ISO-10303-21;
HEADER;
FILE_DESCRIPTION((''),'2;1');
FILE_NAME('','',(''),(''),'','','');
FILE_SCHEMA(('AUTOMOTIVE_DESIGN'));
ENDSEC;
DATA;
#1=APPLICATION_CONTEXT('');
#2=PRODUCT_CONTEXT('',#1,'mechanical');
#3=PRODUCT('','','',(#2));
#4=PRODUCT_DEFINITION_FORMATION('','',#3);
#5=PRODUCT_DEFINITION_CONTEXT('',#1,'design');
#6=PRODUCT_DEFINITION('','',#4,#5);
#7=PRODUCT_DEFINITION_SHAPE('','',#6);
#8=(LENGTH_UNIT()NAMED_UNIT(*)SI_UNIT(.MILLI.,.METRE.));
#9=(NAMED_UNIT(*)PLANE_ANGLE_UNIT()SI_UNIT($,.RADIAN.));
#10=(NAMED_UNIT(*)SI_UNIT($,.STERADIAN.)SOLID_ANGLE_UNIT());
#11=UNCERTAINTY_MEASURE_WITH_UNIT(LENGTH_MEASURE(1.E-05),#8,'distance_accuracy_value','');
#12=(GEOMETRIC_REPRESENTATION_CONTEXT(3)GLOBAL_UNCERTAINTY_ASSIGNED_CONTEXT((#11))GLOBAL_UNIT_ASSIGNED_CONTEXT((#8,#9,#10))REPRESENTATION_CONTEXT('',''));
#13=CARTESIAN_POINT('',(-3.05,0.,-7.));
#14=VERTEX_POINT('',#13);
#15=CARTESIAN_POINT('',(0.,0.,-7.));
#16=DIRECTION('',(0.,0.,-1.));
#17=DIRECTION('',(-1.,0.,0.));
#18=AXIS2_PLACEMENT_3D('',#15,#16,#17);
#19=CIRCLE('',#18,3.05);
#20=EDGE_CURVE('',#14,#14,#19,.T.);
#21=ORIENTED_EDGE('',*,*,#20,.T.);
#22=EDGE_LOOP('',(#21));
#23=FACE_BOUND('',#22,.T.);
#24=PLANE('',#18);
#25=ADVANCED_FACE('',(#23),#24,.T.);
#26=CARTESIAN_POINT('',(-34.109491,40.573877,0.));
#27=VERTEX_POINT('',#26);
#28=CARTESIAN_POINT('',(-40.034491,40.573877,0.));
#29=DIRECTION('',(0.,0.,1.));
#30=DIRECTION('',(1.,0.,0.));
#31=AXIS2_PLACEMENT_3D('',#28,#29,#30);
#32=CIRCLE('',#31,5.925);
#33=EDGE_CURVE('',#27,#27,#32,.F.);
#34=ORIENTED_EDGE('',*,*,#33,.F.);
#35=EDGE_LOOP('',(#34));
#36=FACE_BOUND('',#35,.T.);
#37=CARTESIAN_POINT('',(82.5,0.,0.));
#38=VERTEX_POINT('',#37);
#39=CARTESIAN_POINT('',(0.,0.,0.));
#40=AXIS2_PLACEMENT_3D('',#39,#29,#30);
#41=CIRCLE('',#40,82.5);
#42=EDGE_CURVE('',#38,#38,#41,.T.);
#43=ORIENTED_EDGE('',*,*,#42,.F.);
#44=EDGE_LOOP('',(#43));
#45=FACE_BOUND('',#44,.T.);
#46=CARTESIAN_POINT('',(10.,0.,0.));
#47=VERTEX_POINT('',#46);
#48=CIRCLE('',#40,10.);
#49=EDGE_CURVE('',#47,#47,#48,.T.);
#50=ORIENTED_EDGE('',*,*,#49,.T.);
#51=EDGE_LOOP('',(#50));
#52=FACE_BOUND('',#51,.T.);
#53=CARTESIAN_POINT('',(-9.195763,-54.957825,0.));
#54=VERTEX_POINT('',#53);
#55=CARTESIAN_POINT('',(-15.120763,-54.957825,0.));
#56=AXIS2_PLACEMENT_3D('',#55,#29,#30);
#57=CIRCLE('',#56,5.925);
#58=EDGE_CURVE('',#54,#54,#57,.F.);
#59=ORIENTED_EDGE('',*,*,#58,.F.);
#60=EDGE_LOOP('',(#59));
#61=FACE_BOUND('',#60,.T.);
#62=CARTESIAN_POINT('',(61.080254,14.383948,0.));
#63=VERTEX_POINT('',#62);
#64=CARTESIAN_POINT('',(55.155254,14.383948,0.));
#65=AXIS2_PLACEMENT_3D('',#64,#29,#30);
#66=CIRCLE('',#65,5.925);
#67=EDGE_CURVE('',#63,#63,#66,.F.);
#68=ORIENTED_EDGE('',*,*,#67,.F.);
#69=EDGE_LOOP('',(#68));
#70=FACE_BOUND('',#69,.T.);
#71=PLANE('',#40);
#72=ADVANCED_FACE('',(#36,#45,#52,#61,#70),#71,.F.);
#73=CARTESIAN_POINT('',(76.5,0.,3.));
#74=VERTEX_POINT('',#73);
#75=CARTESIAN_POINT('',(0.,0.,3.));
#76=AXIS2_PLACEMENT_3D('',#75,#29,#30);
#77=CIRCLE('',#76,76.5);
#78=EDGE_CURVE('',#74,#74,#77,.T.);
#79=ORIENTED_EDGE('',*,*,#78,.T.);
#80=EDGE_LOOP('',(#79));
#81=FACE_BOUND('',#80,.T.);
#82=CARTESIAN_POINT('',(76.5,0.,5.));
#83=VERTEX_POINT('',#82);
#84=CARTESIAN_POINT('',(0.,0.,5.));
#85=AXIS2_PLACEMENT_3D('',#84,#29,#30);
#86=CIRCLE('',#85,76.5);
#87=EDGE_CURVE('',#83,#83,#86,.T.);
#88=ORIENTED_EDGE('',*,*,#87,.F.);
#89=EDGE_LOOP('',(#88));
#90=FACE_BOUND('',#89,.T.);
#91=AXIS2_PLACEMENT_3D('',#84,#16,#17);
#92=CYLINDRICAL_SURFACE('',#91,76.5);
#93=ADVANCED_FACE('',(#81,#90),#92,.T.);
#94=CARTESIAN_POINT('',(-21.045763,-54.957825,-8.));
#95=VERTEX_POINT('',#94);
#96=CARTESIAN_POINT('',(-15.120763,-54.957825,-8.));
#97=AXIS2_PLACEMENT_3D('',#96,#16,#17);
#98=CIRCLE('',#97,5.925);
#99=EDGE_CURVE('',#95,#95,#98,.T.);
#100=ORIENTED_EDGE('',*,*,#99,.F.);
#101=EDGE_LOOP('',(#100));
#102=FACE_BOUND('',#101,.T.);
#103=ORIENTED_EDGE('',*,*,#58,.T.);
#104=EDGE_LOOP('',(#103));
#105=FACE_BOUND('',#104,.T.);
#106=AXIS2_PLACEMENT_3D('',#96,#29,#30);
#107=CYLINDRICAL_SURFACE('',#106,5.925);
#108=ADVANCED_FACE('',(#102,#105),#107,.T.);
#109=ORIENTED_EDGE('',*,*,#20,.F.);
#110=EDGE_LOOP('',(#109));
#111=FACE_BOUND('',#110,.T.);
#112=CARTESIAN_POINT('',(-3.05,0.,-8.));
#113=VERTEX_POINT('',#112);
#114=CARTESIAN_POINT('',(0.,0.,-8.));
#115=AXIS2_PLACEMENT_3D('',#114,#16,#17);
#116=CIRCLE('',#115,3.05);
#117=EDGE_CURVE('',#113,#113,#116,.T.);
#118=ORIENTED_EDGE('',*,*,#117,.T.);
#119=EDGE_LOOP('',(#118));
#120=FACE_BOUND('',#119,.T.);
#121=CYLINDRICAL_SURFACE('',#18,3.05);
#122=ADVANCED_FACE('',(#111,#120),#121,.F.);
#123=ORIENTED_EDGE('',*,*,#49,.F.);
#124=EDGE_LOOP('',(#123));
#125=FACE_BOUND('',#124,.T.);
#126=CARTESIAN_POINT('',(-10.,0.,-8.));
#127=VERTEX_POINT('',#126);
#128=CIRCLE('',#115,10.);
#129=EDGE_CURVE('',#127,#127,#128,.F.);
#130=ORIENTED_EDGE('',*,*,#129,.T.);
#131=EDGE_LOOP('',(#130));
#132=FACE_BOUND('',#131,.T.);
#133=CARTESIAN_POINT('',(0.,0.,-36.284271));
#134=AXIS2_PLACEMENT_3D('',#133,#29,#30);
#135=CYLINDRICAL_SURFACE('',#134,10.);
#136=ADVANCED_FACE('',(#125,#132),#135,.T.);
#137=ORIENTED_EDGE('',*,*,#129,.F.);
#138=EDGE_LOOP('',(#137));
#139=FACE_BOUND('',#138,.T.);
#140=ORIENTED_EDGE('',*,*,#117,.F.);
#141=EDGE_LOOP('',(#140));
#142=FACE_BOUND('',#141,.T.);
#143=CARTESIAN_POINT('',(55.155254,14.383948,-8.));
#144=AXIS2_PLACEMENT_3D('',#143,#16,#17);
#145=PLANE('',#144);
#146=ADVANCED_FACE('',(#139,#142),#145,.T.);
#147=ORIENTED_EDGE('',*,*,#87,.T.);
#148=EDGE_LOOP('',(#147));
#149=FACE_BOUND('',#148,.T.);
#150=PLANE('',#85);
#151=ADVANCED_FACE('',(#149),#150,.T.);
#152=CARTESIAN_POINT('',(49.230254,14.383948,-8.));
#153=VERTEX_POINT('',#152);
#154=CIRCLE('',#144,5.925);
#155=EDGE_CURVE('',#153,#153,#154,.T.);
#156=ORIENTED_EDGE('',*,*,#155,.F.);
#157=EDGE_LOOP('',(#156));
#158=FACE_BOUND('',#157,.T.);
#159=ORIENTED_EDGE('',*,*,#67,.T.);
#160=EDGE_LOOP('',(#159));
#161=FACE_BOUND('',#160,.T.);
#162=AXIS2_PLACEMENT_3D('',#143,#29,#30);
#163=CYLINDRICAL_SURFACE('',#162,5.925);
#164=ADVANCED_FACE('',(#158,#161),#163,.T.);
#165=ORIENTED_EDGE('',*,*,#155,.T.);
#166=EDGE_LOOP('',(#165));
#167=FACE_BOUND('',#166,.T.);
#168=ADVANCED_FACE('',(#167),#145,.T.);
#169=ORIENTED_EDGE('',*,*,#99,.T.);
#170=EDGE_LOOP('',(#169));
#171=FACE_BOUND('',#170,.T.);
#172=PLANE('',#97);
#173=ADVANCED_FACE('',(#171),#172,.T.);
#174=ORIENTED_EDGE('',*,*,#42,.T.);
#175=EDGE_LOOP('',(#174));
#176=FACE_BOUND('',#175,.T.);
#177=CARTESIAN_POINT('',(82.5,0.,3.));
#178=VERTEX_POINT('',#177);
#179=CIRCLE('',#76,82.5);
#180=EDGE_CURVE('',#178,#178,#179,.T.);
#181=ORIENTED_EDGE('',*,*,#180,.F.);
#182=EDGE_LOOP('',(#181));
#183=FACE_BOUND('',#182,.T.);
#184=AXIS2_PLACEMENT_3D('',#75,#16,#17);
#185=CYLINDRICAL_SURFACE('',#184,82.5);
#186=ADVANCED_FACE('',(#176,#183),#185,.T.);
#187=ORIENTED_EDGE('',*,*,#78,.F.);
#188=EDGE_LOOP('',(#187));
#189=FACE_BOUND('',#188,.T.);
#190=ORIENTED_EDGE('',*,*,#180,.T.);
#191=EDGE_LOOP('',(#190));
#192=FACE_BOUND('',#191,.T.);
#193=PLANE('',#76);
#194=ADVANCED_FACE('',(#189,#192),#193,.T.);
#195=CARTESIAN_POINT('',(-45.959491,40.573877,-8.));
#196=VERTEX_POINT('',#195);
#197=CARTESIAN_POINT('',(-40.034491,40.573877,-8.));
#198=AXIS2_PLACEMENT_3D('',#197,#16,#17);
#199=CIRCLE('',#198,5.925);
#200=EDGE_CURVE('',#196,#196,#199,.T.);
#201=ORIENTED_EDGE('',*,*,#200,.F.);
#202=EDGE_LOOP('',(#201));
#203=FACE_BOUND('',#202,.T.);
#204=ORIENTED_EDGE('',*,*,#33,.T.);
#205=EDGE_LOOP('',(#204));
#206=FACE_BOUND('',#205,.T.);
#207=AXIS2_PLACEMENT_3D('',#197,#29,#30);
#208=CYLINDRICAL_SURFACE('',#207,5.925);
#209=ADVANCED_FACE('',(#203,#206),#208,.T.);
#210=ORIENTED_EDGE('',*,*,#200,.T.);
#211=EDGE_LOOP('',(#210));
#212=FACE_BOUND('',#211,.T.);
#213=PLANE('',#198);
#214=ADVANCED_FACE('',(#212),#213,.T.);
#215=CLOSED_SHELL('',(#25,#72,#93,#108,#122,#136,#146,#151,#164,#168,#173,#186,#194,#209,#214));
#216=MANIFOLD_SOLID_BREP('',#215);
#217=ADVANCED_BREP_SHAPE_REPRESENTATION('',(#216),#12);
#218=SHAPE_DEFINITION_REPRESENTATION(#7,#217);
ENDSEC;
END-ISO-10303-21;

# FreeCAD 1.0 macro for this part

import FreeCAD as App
import Part
import Sketcher
from FreeCAD import Vector
Q = App.Units.Quantity

doc = App.newDocument("Part")
body = doc.addObject("PartDesign::Body", "Body")

# Sketch on XY plane
sketch1 = body.newObject("Sketcher::SketchObject", "Sketch")
sketch1.AttachmentSupport = (doc.getObject("XY_Plane"), [""])
sketch1.MapMode = "FlatFace"
sketch1.addGeometry([
    Part.Circle(Vector(0, 0, 0), Vector(0, 0, 1), 82),
    Part.Circle(Vector(0, 0, 0), Vector(0, 0, 1), 14),
], False)
sketch1.addConstraint([
    Sketcher.Constraint("Coincident", 0, 3, -1, 1),
    Sketcher.Constraint("Coincident", 1, 3, -1, 1),
    Sketcher.Constraint("Diameter", 0, Q("165 mm")),
    Sketcher.Constraint("Diameter", 1, Q("28 mm")),
])
pad1 = body.newObject("PartDesign::Pad", "Pad")
pad1.Profile = sketch1
pad1.Length = 3

# Sketch on XY plane
sketch2 = body.newObject("Sketcher::SketchObject", "Sketch001")
sketch2.AttachmentSupport = (doc.getObject("XY_Plane"), [""])
sketch2.MapMode = "FlatFace"
sketch2.addGeometry([
    Part.Circle(Vector(55, 14, 0), Vector(0, 0, 1), 6),
    Part.Circle(Vector(-40, 41, 0), Vector(0, 0, 1), 6),
    Part.Circle(Vector(-15, -55, 0), Vector(0, 0, 1), 6),
], False)
sketch2.addConstraint([
    Sketcher.Constraint("Equal", 0, 1),
    Sketcher.Constraint("Equal", 1, 2),
    Sketcher.Constraint("Diameter", 0, Q("11.85 mm")),
    Sketcher.Constraint("DistanceX", 1, 3, -1, 1, Q("40.034491 mm")),
    Sketcher.Constraint("DistanceY", 0, 3, 1, 3, Q("26.18993 mm")),
    Sketcher.Constraint("DistanceX", 1, 3, 2, 3, Q("24.913728 mm")),
    Sketcher.Constraint("DistanceX", -1, 1, 0, 3, Q("55.155254 mm")),
    Sketcher.Constraint("DistanceY", -1, 1, 0, 3, Q("14.383948 mm")),
    Sketcher.Constraint("DistanceY", 2, 3, -1, 1, Q("54.957825 mm")),
])
pad2 = body.newObject("PartDesign::Pad", "Pad001")
pad2.Profile = sketch2
pad2.Length = 8
pad2.Reversed = True

# Sketch on XY plane
sketch3 = body.newObject("Sketcher::SketchObject", "Sketch002")
sketch3.AttachmentSupport = (doc.getObject("XY_Plane"), [""])
sketch3.MapMode = "FlatFace"
sketch3.AttachmentOffset = App.Placement(Vector(0, 0, 3), App.Rotation())
sketch3.addGeometry(Part.Circle(Vector(0, 0, 0), Vector(0, 0, 1), 14), False)
sketch3.addConstraint([
    Sketcher.Constraint("Coincident", 0, 3, -1, 1),
    Sketcher.Constraint("Diameter", 0, Q("28 mm")),
])
pad3 = body.newObject("PartDesign::Pad", "Pad002")
pad3.Profile = sketch3
pad3.Length = 3
pad3.Reversed = True

# Sketch on XY plane
sketch4 = body.newObject("Sketcher::SketchObject", "Sketch003")
sketch4.AttachmentSupport = (doc.getObject("XY_Plane"), [""])
sketch4.MapMode = "FlatFace"
sketch4.AttachmentOffset = App.Placement(Vector(0, 0, 3), App.Rotation())
sketch4.addGeometry(Part.Circle(Vector(0, 0, 0), Vector(0, 0, 1), 10), False)
sketch4.addConstraint([
    Sketcher.Constraint("Coincident", 0, 3, -1, 1),
    Sketcher.Constraint("Diameter", 0, Q("20 mm")),
])
pad4 = body.newObject("PartDesign::Pad", "Pad003")
pad4.Profile = sketch4
pad4.Length = 11
pad4.Reversed = True

# Sketch on XY plane
sketch5 = body.newObject("Sketcher::SketchObject", "Sketch004")
sketch5.AttachmentSupport = (doc.getObject("XY_Plane"), [""])
sketch5.MapMode = "FlatFace"
sketch5.AttachmentOffset = App.Placement(Vector(0, 0, -8), App.Rotation())
sketch5.addGeometry(Part.Circle(Vector(0, 0, 0), Vector(0, 0, 1), 3), False)
sketch5.addConstraint([
    Sketcher.Constraint("Coincident", 0, 3, -1, 1),
    Sketcher.Constraint("Diameter", 0, Q("6.1 mm")),
])
pocket1 = body.newObject("PartDesign::Pocket", "Pocket")
pocket1.Profile = sketch5
pocket1.Length = 1
pocket1.Reversed = True

# Sketch on XY plane
sketch6 = body.newObject("Sketcher::SketchObject", "Sketch005")
sketch6.AttachmentSupport = (doc.getObject("XY_Plane"), [""])
sketch6.MapMode = "FlatFace"
sketch6.AttachmentOffset = App.Placement(Vector(0, 0, 3), App.Rotation())
sketch6.addGeometry(Part.Circle(Vector(0, 0, 0), Vector(0, 0, 1), 76), False)
sketch6.addConstraint([
    Sketcher.Constraint("Coincident", 0, 3, -1, 1),
    Sketcher.Constraint("Diameter", 0, Q("153 mm")),
])
pad5 = body.newObject("PartDesign::Pad", "Pad004")
pad5.Profile = sketch6
pad5.Length = 2

doc.recompute()
